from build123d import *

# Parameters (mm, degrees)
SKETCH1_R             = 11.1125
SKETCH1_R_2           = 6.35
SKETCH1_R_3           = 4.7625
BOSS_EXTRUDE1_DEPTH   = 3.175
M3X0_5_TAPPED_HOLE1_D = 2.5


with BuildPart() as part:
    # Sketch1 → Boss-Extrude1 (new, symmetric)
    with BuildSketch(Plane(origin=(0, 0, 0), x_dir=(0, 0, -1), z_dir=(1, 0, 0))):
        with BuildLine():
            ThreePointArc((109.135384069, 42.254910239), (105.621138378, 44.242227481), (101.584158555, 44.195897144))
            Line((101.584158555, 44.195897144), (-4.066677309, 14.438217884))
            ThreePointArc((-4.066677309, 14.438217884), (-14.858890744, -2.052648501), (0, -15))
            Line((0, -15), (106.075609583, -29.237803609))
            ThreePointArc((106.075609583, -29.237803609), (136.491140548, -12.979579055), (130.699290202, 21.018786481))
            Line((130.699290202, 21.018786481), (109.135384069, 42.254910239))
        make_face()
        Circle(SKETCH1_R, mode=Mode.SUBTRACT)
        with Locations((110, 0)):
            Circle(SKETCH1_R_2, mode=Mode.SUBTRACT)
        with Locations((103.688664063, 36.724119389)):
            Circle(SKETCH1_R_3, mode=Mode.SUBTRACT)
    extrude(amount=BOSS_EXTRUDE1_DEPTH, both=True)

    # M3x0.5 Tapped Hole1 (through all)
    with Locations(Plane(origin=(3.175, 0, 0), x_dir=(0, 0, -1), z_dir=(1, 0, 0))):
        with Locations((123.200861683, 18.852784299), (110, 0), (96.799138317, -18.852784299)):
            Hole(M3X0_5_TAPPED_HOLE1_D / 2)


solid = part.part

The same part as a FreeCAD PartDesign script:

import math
import FreeCAD as App
import Part
import Sketcher
Q = App.Units.Quantity

doc = App.newDocument("Part")
params = doc.addObject("Spreadsheet::Sheet", "Params")
for row, (alias, value) in enumerate([
    ("sketch1_diameter", "0.5 in"),
    ("sketch1_diameter2", "0.875 in"),
    ("sketch1_diameter3", "0.375 in"),
    ("pad1_length", "0.25 in"),
    ("hole_diameter", "2.5 mm"),
], start=1):
    params.set(f"A{row}", alias)
    params.set(f"B{row}", "=" + value)
    params.setAlias(f"B{row}", alias)

body = doc.addObject("PartDesign::Body", "Body")

# Sketch on YZ plane
sketch1 = body.newObject("Sketcher::SketchObject", "Sketch")
sketch1.AttachmentSupport = (doc.getObject("YZ_Plane"), [""])
sketch1.MapMode = "FlatFace"
sketch1.addGeometry(Part.ArcOfCircle(Part.Circle(App.Vector(36.7, -103.7, 0), App.Vector(0, 0, 1), 7.8), math.radians(-45), math.radians(16)), False)
sketch1.addGeometry(Part.LineSegment(App.Vector(44.2, -101.6, 0), App.Vector(14.4, 4.1, 0)), False)
sketch1.addGeometry(Part.ArcOfCircle(Part.Circle(App.Vector(0, 0, 0), App.Vector(0, 0, 1), 15), math.radians(16), math.radians(180)), False)
sketch1.addGeometry(Part.LineSegment(App.Vector(-15, 0, 0), App.Vector(-29.2, -106.1, 0)), False)
sketch1.addGeometry(Part.ArcOfCircle(Part.Circle(App.Vector(0, -110, 0), App.Vector(0, 0, 1), 29.5), math.radians(172), math.radians(315)), False)
sketch1.addGeometry(Part.LineSegment(App.Vector(21, -130.7, 0), App.Vector(42.3, -109.1, 0)), False)
sketch1.addGeometry(Part.Circle(App.Vector(0, 0, 0), App.Vector(0, 0, 1), 11.1), False)
sketch1.addGeometry(Part.Circle(App.Vector(0, -110, 0), App.Vector(0, 0, 1), 6.3), False)
sketch1.addGeometry(Part.Circle(App.Vector(36.7, -103.7, 0), App.Vector(0, 0, 1), 4.8), False)
sketch1.addConstraint(Sketcher.Constraint("Tangent", 0, 2, 1, 1))
sketch1.addConstraint(Sketcher.Constraint("Tangent", 1, 2, 2, 1))
sketch1.addConstraint(Sketcher.Constraint("Coincident", 2, 2, 3, 1))
sketch1.addConstraint(Sketcher.Constraint("Tangent", 3, 2, 4, 1))
sketch1.addConstraint(Sketcher.Constraint("Tangent", 4, 2, 5, 1))
sketch1.addConstraint(Sketcher.Constraint("Tangent", 5, 2, 0, 1))
sketch1.addConstraint(Sketcher.Constraint("Coincident", 2, 3, -1, 1))
sketch1.addConstraint(Sketcher.Constraint("Coincident", 6, 3, -1, 1))
sketch1.addConstraint(Sketcher.Constraint("Coincident", 7, 3, 4, 3))
sketch1.addConstraint(Sketcher.Constraint("Coincident", 8, 3, 0, 3))
sketch1.addConstraint(Sketcher.Constraint("PointOnObject", 4, 3, -2))
sketch1.addConstraint(Sketcher.Constraint("PointOnObject", 2, 2, -1))
sketch1.addConstraint(Sketcher.Constraint("Diameter", 7, Q("0.5 in")))
sketch1.addConstraint(Sketcher.Constraint("Diameter", 6, Q("0.875 in")))
sketch1.addConstraint(Sketcher.Constraint("Diameter", 8, Q("0.375 in")))
sketch1.addConstraint(Sketcher.Constraint("Radius", 0, Q("7.7625 mm")))
sketch1.addConstraint(Sketcher.Constraint("Radius", 2, Q("15 mm")))
sketch1.addConstraint(Sketcher.Constraint("Radius", 4, Q("29.5 mm")))
sketch1.addConstraint(Sketcher.Constraint("DistanceY", 4, 3, -1, 1, Q("110 mm")))
sketch1.addConstraint(Sketcher.Constraint("DistanceX", 1, 2, 8, 3, Q("22.285902 mm")))
sketch1.addConstraint(Sketcher.Constraint("DistanceX", 3, 2, 0, 2, Q("73.433701 mm")))
sketch1.setExpression("Constraints[12]", "Params.sketch1_diameter")
sketch1.setExpression("Constraints[13]", "Params.sketch1_diameter2")
sketch1.setExpression("Constraints[14]", "Params.sketch1_diameter3")
pad1 = body.newObject("PartDesign::Pad", "Pad")
pad1.Profile = sketch1
pad1.setExpression("Length", "Params.pad1_length")
pad1.Midplane = True

# Sketch on YZ plane
sketch2 = body.newObject("Sketcher::SketchObject", "Sketch001")
sketch2.AttachmentSupport = (doc.getObject("YZ_Plane"), [""])
sketch2.MapMode = "FlatFace"
sketch2.AttachmentOffset = App.Placement(App.Vector(0, 0, 0.125 * 25.4), App.Rotation())
sketch2.addGeometry(Part.Circle(App.Vector(18.9, -123.2, 0), App.Vector(0, 0, 1), 1.2), False)
sketch2.addGeometry(Part.Circle(App.Vector(0, -110, 0), App.Vector(0, 0, 1), 1.2), False)
sketch2.addGeometry(Part.Circle(App.Vector(-18.9, -96.8, 0), App.Vector(0, 0, 1), 1.2), False)
sketch2.addConstraint(Sketcher.Constraint("Equal", 0, 1))
sketch2.addConstraint(Sketcher.Constraint("Equal", 1, 2))
sketch2.addConstraint(Sketcher.Constraint("PointOnObject", 1, 3, -2))
sketch2.addConstraint(Sketcher.Constraint("Diameter", 0, Q("2.5 mm")))
sketch2.addConstraint(Sketcher.Constraint("DistanceY", 1, 3, -1, 1, Q("110 mm")))
sketch2.addConstraint(Sketcher.Constraint("DistanceY", 0, 3, -1, 1, Q("123.200862 mm")))
sketch2.addConstraint(Sketcher.Constraint("DistanceY", 2, 3, -1, 1, Q("96.799138 mm")))
sketch2.addConstraint(Sketcher.Constraint("DistanceX", 2, 3, 0, 3, Q("37.705569 mm")))
sketch2.addConstraint(Sketcher.Constraint("DistanceX", -1, 1, 0, 3, Q("18.852784 mm")))
doc.recompute()
hole = body.newObject("PartDesign::Hole", "Hole")
hole.Profile = sketch2
hole.ThreadType = "None"
hole.setExpression("Diameter", "Params.hole_diameter")
hole.DepthType = "ThroughAll"

doc.recompute()
